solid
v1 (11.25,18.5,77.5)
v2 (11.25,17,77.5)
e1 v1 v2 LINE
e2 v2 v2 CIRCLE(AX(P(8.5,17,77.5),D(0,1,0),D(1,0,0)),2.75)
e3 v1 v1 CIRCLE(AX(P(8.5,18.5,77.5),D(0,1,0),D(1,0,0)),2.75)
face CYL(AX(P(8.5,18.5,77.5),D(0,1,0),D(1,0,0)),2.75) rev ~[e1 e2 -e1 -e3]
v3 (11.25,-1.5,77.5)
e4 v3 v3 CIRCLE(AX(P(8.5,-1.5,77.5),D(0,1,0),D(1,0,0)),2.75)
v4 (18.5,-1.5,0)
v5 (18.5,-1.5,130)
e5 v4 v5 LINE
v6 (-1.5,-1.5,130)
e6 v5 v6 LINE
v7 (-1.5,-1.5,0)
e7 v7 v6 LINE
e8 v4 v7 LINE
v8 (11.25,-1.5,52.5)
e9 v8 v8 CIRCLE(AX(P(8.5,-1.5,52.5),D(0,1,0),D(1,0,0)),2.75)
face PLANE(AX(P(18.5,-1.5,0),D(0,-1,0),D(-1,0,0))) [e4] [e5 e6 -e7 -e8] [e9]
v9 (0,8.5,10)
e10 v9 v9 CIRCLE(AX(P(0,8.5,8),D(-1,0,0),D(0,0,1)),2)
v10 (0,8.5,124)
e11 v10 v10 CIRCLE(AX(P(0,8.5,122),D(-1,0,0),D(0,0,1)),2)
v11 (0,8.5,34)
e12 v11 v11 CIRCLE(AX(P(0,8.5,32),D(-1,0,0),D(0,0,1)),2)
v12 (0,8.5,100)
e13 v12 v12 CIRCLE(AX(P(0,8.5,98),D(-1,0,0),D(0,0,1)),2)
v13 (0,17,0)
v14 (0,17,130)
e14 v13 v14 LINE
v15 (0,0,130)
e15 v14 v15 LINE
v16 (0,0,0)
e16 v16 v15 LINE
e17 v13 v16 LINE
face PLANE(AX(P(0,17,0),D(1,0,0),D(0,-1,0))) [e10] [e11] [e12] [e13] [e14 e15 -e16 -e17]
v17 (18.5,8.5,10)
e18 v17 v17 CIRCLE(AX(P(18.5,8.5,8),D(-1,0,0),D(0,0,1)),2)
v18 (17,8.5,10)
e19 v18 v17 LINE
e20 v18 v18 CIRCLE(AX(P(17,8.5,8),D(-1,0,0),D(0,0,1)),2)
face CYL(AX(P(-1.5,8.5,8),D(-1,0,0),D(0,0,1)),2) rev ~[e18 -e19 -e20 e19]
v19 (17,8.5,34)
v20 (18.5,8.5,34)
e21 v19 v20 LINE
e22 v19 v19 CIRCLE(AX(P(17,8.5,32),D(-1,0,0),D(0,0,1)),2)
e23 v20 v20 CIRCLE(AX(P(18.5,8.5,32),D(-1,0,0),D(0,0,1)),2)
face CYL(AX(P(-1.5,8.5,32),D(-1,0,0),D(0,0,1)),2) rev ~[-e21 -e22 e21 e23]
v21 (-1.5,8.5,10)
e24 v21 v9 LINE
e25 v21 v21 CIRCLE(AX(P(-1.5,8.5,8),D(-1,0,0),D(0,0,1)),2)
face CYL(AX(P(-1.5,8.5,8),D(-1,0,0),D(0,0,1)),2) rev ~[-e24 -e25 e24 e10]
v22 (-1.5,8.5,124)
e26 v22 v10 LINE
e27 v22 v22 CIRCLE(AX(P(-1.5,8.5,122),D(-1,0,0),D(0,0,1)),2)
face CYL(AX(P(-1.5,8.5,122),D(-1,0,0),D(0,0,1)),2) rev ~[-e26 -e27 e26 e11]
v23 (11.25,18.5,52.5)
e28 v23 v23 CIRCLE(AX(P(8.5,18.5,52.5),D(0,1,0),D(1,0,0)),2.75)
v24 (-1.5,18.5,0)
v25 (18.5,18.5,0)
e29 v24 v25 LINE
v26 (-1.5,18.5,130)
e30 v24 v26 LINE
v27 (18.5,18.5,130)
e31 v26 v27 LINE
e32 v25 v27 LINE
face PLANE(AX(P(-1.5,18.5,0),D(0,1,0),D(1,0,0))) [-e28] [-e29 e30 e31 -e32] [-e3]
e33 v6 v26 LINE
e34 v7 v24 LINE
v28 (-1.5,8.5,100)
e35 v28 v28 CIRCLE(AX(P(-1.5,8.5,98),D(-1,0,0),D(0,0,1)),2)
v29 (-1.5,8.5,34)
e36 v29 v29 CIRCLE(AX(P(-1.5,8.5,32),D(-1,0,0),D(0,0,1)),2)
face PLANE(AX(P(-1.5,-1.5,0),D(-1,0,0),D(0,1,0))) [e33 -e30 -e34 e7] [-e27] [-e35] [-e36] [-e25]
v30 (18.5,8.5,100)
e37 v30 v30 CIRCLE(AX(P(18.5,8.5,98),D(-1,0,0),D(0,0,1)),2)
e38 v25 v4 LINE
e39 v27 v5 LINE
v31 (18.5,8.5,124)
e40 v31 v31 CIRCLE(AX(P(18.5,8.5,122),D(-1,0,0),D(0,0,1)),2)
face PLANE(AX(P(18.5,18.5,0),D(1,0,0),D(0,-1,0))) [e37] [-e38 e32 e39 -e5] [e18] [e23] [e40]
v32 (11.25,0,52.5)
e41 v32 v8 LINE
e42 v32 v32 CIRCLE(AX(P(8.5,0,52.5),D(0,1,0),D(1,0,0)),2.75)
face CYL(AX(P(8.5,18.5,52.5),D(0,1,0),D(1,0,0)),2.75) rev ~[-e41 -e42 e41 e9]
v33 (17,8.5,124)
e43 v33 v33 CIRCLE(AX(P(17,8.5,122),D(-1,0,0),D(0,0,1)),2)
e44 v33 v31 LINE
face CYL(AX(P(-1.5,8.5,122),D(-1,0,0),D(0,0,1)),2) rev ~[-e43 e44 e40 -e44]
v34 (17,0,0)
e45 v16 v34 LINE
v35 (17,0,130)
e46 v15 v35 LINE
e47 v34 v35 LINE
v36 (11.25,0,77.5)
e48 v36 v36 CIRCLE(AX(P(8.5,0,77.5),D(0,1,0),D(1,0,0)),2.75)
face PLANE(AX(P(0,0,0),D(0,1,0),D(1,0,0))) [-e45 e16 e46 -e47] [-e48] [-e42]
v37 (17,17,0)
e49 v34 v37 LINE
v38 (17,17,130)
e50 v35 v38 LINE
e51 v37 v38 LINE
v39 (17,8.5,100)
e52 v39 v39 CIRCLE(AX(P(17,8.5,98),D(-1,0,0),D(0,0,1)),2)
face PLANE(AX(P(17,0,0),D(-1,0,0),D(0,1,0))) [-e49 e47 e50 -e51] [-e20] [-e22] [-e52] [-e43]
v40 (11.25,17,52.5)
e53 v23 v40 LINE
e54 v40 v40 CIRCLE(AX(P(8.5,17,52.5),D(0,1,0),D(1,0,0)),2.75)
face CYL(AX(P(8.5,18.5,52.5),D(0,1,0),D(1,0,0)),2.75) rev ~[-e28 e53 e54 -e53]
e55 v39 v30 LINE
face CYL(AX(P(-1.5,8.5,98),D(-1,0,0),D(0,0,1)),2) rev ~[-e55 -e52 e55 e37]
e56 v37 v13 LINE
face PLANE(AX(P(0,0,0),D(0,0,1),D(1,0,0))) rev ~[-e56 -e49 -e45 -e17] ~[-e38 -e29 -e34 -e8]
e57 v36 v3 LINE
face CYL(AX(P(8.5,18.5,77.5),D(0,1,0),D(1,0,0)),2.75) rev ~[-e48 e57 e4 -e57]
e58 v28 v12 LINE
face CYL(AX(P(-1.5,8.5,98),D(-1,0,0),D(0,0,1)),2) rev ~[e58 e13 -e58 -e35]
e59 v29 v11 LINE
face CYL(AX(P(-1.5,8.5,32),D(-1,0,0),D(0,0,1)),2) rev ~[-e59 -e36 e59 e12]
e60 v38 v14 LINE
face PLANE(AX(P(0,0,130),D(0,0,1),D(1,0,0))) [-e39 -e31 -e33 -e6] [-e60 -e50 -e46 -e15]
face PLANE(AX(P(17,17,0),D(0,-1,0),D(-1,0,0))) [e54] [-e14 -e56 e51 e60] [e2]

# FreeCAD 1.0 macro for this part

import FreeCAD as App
import Part
import Sketcher
from FreeCAD import Vector
Q = App.Units.Quantity


def add_polygon(sketch, points):
    """Adds a closed chain of lines whose ends are joined by coincident constraints."""
    first, n = sketch.GeometryCount, len(points)
    for a, b in zip(points, points[1:] + points[:1]):
        sketch.addGeometry(Part.LineSegment(App.Vector(*a, 0), App.Vector(*b, 0)), False)
    for i in range(n):
        sketch.addConstraint(Sketcher.Constraint("Coincident", first + i, 2, first + (i + 1) % n, 1))

doc = App.newDocument("Part")
body = doc.addObject("PartDesign::Body", "Body")

# Sketch on XY plane
sketch1 = doc.addObject("Sketcher::SketchObject", "Sketch")
body.addObject(sketch1)
sketch1.AttachmentSupport = (doc.XY_Plane, [""])
sketch1.MapMode = "FlatFace"
add_polygon(sketch1, [(18, 18), (-2, 18), (-2, -2), (18, -2)])  # lines 0-3
add_polygon(sketch1, [(17, 0), (0, 0), (0, 17), (17, 17)])  # lines 4-7
sketch1.addConstraint([
    Sketcher.Constraint("Horizontal", 0),
    Sketcher.Constraint("Vertical", 1),
    Sketcher.Constraint("Horizontal", 2),
    Sketcher.Constraint("Vertical", 3),
    Sketcher.Constraint("Horizontal", 4),
    Sketcher.Constraint("Vertical", 5),
    Sketcher.Constraint("Horizontal", 6),
    Sketcher.Constraint("Vertical", 7),
    Sketcher.Constraint("Coincident", 4, 2, -1, 1),
    Sketcher.Constraint("Equal", 2, 1),
    Sketcher.Constraint("Equal", 6, 5),
    Sketcher.Constraint("DistanceX", 0, 2, 0, 1, Q("20 mm")),
    Sketcher.Constraint("DistanceX", 0, 2, -1, 1, Q("1.5 mm")),
    Sketcher.Constraint("DistanceY", 1, 2, -1, 1, Q("1.5 mm")),
    Sketcher.Constraint("DistanceY", 5, 2, 0, 2, Q("1.5 mm")),
])
pad1 = doc.addObject("PartDesign::Pad", "Pad")
body.addObject(pad1)
pad1.Profile = sketch1
pad1.Length = 130

# Sketch on XZ plane
sketch2 = doc.addObject("Sketcher::SketchObject", "Sketch001")
body.addObject(sketch2)
sketch2.AttachmentSupport = (doc.XZ_Plane, [""])
sketch2.MapMode = "FlatFace"
sketch2.AttachmentOffset = App.Placement(Vector(0, 0, -18.5), App.Rotation())
sketch2.addGeometry([
    Part.Circle(Vector(8.5, 52.5, 0), Vector(0, 0, 1), 2.8),
    Part.Circle(Vector(8.5, 77.5, 0), Vector(0, 0, 1), 2.8),
], False)
sketch2.addConstraint([
    Sketcher.Constraint("Equal", 0, 1),
    Sketcher.Constraint("Vertical", 0, 3, 1, 3),
    Sketcher.Constraint("Diameter", 0, Q("5.5 mm")),
    Sketcher.Constraint("DistanceY", 0, 3, 1, 3, Q("25 mm")),
    Sketcher.Constraint("DistanceX", -1, 1, 0, 3, Q("8.5 mm")),
    Sketcher.Constraint("DistanceY", -1, 1, 0, 3, Q("52.5 mm")),
])
pocket1 = doc.addObject("PartDesign::Pocket", "Pocket")
body.addObject(pocket1)
pocket1.Profile = sketch2
pocket1.Type = "ThroughAll"
pocket1.Reversed = True

# Sketch on YZ plane
sketch3 = doc.addObject("Sketcher::SketchObject", "Sketch002")
body.addObject(sketch3)
sketch3.AttachmentSupport = (doc.YZ_Plane, [""])
sketch3.MapMode = "FlatFace"
sketch3.AttachmentOffset = App.Placement(Vector(0, 0, -1.5), App.Rotation())
sketch3.addGeometry([
    Part.Circle(Vector(8.5, 8, 0), Vector(0, 0, 1), 2),
    Part.Circle(Vector(8.5, 32, 0), Vector(0, 0, 1), 2),
    Part.Circle(Vector(8.5, 98, 0), Vector(0, 0, 1), 2),
    Part.Circle(Vector(8.5, 122, 0), Vector(0, 0, 1), 2),
], False)
sketch3.addConstraint([
    Sketcher.Constraint("Equal", 0, 1),
    Sketcher.Constraint("Equal", 1, 2),
    Sketcher.Constraint("Equal", 2, 3),
    Sketcher.Constraint("Vertical", 0, 3, 1, 3),
    Sketcher.Constraint("Vertical", 1, 3, 2, 3),
    Sketcher.Constraint("Vertical", 2, 3, 3, 3),
    Sketcher.Constraint("Diameter", 0, Q("4 mm")),
    Sketcher.Constraint("DistanceY", -1, 1, 0, 3, Q("8 mm")),
    Sketcher.Constraint("DistanceY", -1, 1, 1, 3, Q("32 mm")),
    Sketcher.Constraint("DistanceY", -1, 1, 2, 3, Q("98 mm")),
    Sketcher.Constraint("DistanceY", -1, 1, 3, 3, Q("122 mm")),
    Sketcher.Constraint("DistanceX", -1, 1, 0, 3, Q("8.5 mm")),
])
pocket2 = doc.addObject("PartDesign::Pocket", "Pocket001")
body.addObject(pocket2)
pocket2.Profile = sketch3
pocket2.Length = 200
pocket2.Reversed = True

doc.recompute()
